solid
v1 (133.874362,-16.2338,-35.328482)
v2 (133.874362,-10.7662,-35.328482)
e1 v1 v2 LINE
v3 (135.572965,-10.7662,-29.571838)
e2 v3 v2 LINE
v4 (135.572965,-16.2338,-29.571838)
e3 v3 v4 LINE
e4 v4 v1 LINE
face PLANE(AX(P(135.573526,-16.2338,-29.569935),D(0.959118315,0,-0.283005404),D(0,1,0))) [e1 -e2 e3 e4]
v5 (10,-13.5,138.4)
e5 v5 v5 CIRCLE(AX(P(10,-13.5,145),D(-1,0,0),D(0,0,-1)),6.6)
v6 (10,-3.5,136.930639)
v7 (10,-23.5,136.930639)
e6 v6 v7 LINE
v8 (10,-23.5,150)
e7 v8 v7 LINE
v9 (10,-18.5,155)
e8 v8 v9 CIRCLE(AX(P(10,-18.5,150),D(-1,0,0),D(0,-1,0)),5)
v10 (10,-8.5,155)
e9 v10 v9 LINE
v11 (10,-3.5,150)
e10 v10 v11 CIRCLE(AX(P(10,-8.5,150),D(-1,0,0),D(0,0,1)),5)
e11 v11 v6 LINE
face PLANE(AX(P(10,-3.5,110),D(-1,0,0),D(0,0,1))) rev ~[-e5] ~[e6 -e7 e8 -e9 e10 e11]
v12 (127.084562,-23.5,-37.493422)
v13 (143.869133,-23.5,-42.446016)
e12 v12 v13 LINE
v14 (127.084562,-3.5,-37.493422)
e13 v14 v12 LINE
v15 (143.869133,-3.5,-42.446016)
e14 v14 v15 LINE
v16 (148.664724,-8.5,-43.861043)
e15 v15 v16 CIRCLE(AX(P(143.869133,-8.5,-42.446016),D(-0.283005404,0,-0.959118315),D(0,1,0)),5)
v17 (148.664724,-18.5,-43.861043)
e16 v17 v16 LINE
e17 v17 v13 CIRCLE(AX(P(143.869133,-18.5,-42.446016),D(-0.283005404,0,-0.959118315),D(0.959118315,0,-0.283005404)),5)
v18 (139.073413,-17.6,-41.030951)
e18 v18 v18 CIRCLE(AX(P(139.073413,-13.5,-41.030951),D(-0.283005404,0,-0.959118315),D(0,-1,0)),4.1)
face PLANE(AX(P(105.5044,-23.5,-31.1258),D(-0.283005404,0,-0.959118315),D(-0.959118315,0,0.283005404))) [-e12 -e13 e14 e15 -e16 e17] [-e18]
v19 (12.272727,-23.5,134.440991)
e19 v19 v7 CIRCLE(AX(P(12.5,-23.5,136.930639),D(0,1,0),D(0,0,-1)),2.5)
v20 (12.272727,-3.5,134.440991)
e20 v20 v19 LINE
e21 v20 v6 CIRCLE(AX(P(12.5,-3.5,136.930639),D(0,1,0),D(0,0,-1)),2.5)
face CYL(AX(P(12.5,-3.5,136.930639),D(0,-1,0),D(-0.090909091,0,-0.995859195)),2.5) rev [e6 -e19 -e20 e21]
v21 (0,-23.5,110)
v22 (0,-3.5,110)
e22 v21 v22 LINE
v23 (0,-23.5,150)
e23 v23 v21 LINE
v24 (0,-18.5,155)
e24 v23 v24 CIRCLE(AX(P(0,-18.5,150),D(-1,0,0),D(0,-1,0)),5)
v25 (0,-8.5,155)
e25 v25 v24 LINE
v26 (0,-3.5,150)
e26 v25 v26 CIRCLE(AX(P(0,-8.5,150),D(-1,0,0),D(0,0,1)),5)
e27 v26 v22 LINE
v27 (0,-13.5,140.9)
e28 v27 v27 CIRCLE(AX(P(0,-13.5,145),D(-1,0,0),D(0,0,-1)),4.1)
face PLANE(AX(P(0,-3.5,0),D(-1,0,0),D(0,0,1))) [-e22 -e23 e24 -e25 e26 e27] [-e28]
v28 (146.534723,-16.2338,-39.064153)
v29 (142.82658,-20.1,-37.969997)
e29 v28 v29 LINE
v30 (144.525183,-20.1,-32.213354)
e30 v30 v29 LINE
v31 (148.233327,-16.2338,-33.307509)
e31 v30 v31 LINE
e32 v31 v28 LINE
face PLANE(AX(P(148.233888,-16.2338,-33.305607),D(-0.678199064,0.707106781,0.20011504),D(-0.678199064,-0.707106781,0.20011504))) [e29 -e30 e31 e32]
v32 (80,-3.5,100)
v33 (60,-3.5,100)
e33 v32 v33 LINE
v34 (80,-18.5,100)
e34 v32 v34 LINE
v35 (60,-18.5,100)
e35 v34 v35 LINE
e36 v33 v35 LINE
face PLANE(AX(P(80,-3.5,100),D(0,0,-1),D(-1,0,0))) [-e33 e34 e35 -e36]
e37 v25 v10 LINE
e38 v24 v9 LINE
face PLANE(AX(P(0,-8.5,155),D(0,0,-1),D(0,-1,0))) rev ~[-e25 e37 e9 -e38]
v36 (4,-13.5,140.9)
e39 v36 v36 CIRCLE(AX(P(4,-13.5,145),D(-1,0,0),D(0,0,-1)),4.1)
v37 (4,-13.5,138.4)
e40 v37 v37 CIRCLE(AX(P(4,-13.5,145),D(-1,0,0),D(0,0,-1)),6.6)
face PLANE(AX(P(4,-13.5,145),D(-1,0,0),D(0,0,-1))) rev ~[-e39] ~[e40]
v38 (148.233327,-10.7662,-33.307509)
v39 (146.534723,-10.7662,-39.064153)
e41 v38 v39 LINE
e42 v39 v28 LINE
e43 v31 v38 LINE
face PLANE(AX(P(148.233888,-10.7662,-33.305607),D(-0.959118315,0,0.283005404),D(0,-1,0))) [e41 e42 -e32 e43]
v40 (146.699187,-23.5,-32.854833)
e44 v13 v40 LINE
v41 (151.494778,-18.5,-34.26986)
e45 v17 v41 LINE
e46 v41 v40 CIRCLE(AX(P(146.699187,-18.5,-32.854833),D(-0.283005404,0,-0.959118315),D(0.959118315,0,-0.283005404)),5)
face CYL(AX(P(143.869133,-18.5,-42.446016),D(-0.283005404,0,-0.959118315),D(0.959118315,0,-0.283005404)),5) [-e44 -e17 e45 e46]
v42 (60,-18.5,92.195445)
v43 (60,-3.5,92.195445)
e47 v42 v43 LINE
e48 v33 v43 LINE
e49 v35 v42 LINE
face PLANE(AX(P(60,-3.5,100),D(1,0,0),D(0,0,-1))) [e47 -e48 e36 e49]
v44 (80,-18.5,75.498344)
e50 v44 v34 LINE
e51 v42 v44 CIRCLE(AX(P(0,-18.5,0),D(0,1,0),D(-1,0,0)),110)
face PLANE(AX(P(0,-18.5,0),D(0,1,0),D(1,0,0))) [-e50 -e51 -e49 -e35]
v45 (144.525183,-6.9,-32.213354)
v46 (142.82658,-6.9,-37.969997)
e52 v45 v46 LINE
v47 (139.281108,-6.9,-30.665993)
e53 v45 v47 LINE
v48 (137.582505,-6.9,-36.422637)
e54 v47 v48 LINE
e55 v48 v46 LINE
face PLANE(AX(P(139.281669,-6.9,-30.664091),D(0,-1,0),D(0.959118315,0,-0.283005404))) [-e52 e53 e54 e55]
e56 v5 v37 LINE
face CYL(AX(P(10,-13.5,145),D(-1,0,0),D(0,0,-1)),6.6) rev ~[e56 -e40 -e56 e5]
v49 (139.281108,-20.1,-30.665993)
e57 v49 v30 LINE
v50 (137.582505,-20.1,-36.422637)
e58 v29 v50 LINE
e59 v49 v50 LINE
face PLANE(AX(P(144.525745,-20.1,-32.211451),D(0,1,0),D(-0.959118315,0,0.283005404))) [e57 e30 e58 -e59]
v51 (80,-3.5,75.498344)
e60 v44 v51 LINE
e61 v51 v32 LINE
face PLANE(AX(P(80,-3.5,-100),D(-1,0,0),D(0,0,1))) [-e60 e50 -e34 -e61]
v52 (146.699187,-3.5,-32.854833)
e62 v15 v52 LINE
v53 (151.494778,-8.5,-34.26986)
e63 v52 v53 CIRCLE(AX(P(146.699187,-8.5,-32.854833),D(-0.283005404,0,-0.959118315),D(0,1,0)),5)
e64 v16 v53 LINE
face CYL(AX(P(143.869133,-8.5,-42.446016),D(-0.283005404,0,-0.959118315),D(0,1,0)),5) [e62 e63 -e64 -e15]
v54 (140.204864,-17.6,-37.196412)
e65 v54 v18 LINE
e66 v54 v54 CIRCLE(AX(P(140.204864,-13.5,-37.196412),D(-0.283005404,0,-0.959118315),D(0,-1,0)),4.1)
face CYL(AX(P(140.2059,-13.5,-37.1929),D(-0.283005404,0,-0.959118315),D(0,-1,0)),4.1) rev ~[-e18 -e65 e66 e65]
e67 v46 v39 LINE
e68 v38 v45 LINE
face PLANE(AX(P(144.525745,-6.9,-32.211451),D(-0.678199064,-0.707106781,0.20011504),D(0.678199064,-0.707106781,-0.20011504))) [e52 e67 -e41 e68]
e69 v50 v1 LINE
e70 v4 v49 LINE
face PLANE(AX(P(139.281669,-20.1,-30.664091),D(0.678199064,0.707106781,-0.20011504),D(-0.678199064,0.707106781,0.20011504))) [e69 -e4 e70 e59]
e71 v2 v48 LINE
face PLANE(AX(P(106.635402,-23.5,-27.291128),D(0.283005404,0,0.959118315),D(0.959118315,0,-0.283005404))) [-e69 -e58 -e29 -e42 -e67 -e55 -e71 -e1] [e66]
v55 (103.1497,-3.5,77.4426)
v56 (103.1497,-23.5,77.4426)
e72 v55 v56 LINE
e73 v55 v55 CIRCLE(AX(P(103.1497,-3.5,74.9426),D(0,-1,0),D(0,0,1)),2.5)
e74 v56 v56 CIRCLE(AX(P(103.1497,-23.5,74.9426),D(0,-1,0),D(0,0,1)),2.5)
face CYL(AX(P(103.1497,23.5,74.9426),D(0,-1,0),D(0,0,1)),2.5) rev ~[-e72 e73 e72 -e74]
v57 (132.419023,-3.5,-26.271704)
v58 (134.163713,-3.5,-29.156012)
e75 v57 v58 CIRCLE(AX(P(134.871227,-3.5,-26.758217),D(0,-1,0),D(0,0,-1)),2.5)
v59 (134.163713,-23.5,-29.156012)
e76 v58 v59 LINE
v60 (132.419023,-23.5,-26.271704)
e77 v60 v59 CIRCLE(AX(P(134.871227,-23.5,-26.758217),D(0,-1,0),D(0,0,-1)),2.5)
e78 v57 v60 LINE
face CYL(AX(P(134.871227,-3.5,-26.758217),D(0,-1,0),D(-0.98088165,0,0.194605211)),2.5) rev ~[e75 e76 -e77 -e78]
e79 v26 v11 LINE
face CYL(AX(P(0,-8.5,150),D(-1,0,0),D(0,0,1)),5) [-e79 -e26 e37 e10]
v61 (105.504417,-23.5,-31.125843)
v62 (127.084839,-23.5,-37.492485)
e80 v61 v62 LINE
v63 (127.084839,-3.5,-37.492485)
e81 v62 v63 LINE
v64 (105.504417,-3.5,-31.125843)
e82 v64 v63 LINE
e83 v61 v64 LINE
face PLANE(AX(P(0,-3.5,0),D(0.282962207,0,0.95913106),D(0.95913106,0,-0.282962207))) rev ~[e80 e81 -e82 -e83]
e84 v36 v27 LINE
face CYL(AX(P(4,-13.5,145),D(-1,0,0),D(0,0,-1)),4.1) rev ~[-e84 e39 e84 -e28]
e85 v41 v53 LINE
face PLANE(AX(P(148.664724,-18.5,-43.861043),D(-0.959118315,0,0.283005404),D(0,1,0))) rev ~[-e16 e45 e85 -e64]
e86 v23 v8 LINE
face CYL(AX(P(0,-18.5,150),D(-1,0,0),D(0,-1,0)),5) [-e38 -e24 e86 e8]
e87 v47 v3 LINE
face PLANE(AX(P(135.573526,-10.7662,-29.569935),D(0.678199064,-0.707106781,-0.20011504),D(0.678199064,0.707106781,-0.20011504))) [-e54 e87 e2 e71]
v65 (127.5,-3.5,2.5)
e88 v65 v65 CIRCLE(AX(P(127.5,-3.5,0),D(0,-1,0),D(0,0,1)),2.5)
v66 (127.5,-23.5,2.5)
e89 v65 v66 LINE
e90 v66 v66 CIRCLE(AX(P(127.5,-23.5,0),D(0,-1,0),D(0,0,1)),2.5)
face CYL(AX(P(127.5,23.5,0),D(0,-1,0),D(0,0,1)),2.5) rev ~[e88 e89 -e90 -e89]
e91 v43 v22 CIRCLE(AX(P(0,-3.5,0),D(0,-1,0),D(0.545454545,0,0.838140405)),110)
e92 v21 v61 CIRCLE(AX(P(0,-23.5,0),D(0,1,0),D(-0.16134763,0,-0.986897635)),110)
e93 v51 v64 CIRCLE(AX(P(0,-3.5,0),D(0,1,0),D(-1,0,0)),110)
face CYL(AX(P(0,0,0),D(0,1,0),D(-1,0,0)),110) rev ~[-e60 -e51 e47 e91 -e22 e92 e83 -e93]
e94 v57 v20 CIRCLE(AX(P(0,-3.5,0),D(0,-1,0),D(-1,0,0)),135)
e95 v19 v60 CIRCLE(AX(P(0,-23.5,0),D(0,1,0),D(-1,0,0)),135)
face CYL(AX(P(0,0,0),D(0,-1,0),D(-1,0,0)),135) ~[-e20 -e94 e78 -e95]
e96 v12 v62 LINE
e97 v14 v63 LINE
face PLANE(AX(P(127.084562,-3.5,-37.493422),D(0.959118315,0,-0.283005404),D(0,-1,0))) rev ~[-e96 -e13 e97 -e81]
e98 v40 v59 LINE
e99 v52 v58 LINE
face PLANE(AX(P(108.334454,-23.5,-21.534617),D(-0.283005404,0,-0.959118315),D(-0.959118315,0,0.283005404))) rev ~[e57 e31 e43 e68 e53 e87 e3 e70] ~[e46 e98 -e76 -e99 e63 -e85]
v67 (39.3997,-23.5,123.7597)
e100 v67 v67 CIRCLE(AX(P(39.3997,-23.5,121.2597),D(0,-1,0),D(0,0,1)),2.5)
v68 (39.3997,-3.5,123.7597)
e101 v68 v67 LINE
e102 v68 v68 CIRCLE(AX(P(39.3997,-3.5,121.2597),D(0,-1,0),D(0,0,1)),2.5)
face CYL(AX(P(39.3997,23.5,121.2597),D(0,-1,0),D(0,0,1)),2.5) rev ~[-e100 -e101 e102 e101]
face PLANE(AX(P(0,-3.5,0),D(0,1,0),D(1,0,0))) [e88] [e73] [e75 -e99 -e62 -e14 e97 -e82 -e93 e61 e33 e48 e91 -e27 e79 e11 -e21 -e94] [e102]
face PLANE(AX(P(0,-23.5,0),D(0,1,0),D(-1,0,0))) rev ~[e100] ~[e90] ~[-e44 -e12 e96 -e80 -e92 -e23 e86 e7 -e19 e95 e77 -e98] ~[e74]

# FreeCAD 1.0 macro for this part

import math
import FreeCAD as App
import Part
import Sketcher

V = App.Vector
Q = App.Units.Quantity


def edges_at(feature, points):
    """Names of the edges that pass closest to the given points."""
    edges = feature.Shape.Edges
    near = lambda p: min(range(len(edges)), key=lambda i: edges[i].distToShape(Part.Vertex(*p))[0])
    return sorted({f"Edge{near(p) + 1}" for p in points})


def add_polygon(sketch, points):
    """Adds a closed chain of lines whose ends are joined by coincident constraints."""
    first, n = sketch.GeometryCount, len(points)
    for a, b in zip(points, points[1:] + points[:1]):
        sketch.addGeometry(Part.LineSegment(App.Vector(*a, 0), App.Vector(*b, 0)), False)
    for i in range(n):
        sketch.addConstraint(Sketcher.Constraint("Coincident", first + i, 2, first + (i + 1) % n, 1))

doc = App.newDocument("Part")
body = doc.addObject("PartDesign::Body", "Body")

# Sketch on XZ plane
sketch1 = body.newObject("Sketcher::SketchObject", "Sketch")
sketch1.AttachmentSupport = (doc.getObject("XZ_Plane"), [""])
sketch1.MapMode = "FlatFace"
sketch1.addGeometry([
    Part.Circle(V(0, 0, 0), V(0, 0, 1), 135),
    Part.Circle(V(0, 0, 0), V(0, 0, 1), 110),
], False)
sketch1.addConstraint([
    Sketcher.Constraint("Coincident", 0, 3, -1, 1),
    Sketcher.Constraint("Coincident", 1, 3, -1, 1),
    Sketcher.Constraint("Diameter", 0, Q("270 mm")),
    Sketcher.Constraint("Diameter", 1, Q("220 mm")),
])
pad1 = body.newObject("PartDesign::Pad", "Pad")
pad1.Profile = sketch1
pad1.Length = 47
pad1.Midplane = True

# Sketch on XY plane
sketch2 = body.newObject("Sketcher::SketchObject", "Sketch001")
sketch2.AttachmentSupport = (doc.getObject("XY_Plane"), [""])
sketch2.MapMode = "FlatFace"
sketch2.addGeometry(Part.Circle(V(0, -20.5, 0), V(0, 0, 1), 18), False)
sketch2.addConstraint([
    Sketcher.Constraint("PointOnObject", 0, 3, -2),
    Sketcher.Constraint("Diameter", 0, Q("36 mm")),
    Sketcher.Constraint("DistanceY", 0, 3, -1, 1, Q("20.5 mm")),
])
pocket1 = body.newObject("PartDesign::Pocket", "Pocket")
pocket1.Profile = sketch2
pocket1.Type = "ThroughAll"

# Sketch on XZ plane
sketch3 = body.newObject("Sketcher::SketchObject", "Sketch002")
sketch3.AttachmentSupport = (doc.getObject("XZ_Plane"), [""])
sketch3.MapMode = "FlatFace"
sketch3.AttachmentOffset = App.Placement(V(0, 0, -23.5), App.Rotation())
sketch3.addGeometry([
    Part.Circle(V(39.3997, 121.2597, 0), V(0, 0, 1), 2.5),  # 0
    Part.Circle(V(-39.3997, 121.2597, 0), V(0, 0, 1), 2.5),  # 1
    Part.Circle(V(-103.1497, 74.9426, 0), V(0, 0, 1), 2.5),  # 2
    Part.Circle(V(-127.5, 0, 0), V(0, 0, 1), 2.5),  # 3
    Part.Circle(V(-103.1497, -74.9426, 0), V(0, 0, 1), 2.5),  # 4
    Part.Circle(V(-39.3997, -121.2597, 0), V(0, 0, 1), 2.5),  # 5
    Part.Circle(V(39.3997, -121.2597, 0), V(0, 0, 1), 2.5),  # 6
    Part.Circle(V(103.1497, -74.9426, 0), V(0, 0, 1), 2.5),  # 7
    Part.Circle(V(127.5, 0, 0), V(0, 0, 1), 2.5),  # 8
    Part.Circle(V(103.1497, 74.9426, 0), V(0, 0, 1), 2.5),  # 9
], False)
sketch3.addConstraint([
    Sketcher.Constraint("Equal", 0, 1),
    Sketcher.Constraint("Equal", 1, 2),
    Sketcher.Constraint("Equal", 2, 3),
    Sketcher.Constraint("Equal", 3, 4),
    Sketcher.Constraint("Equal", 4, 5),
    Sketcher.Constraint("Equal", 5, 6),
    Sketcher.Constraint("Equal", 6, 7),
    Sketcher.Constraint("Equal", 7, 8),
    Sketcher.Constraint("Equal", 8, 9),
    Sketcher.Constraint("Symmetric", 0, 3, 5, 3, -1, 1),
    Sketcher.Constraint("Symmetric", 1, 3, 6, 3, -1, 1),
    Sketcher.Constraint("Symmetric", 2, 3, 7, 3, -1, 1),
    Sketcher.Constraint("Symmetric", 3, 3, 8, 3, -1, 1),
    Sketcher.Constraint("Symmetric", 4, 3, 9, 3, -1, 1),
    Sketcher.Constraint("Symmetric", 0, 3, 1, 3, -2),
    Sketcher.Constraint("Symmetric", 4, 3, 7, 3, -2),
    Sketcher.Constraint("PointOnObject", 3, 3, -1),
    Sketcher.Constraint("Diameter", 0, Q("5 mm")),
    Sketcher.Constraint("DistanceX", 3, 3, -1, 1, Q("127.5 mm")),
    Sketcher.Constraint("DistanceX", 2, 3, 1, 3, Q("63.75 mm")),
    Sketcher.Constraint("DistanceY", 2, 3, 1, 3, Q("46.317 mm")),
    Sketcher.Constraint("DistanceX", -1, 1, 0, 3, Q("39.3997 mm")),
    Sketcher.Constraint("DistanceY", -1, 1, 0, 3, Q("121.2597 mm")),
])
doc.recompute()
hole = body.newObject("PartDesign::Hole", "Hole")
hole.Profile = sketch3
hole.ThreadType = "None"
hole.Diameter = 5
hole.DepthType = "ThroughAll"
hole.Reversed = True

# Sketch on XZ plane
sketch4 = body.newObject("Sketcher::SketchObject", "Sketch003")
sketch4.AttachmentSupport = (doc.getObject("XZ_Plane"), [""])
sketch4.MapMode = "FlatFace"
sketch4.AttachmentOffset = App.Placement(V(0, 0, -23.5), App.Rotation())
sketch4.addGeometry(Part.Circle(V(0, 0, 0), V(0, 0, 1), 140), False)
sketch4.addConstraint([
    Sketcher.Constraint("Coincident", 0, 3, -1, 1),
    Sketcher.Constraint("Diameter", 0, Q("280 mm")),
])
pocket2 = body.newObject("PartDesign::Pocket", "Pocket001")
pocket2.Profile = sketch4
pocket2.Length = 27
pocket2.Reversed = True

# Sketch on XZ plane
sketch5 = body.newObject("Sketcher::SketchObject", "Sketch004")
sketch5.AttachmentSupport = (doc.getObject("XZ_Plane"), [""])
sketch5.MapMode = "FlatFace"
sketch5.AttachmentOffset = App.Placement(V(0, 0, 3.5), App.Rotation())
add_polygon(sketch5, [(60, 100), (80, 100), (80, -100), (60, -100)])  # lines 0-3
sketch5.addConstraint([
    Sketcher.Constraint("Horizontal", 0),
    Sketcher.Constraint("Vertical", 1),
    Sketcher.Constraint("Horizontal", 2),
    Sketcher.Constraint("Vertical", 3),
    Sketcher.Constraint("DistanceX", 0, 1, 0, 2, Q("20 mm")),
    Sketcher.Constraint("DistanceY", 1, 2, 1, 1, Q("200 mm")),
    Sketcher.Constraint("DistanceX", -1, 1, 0, 2, Q("80 mm")),
    Sketcher.Constraint("DistanceY", -1, 1, 0, 2, Q("100 mm")),
])
pocket3 = body.newObject("PartDesign::Pocket", "Pocket002")
pocket3.Profile = sketch5
pocket3.Length = 15
pocket3.Reversed = True

# Sketch on XZ plane
sketch6 = body.newObject("Sketcher::SketchObject", "Sketch005")
sketch6.AttachmentSupport = (doc.getObject("XZ_Plane"), [""])
sketch6.MapMode = "FlatFace"
sketch6.AttachmentOffset = App.Placement(V(0, 0, 3.5), App.Rotation())
sketch6.addGeometry([
    Part.LineSegment(V(0, 135, 0), V(0, 0, 0)),
    Part.LineSegment(V(0, 0, 0), V(129.4827, -38.1999, 0)),
    Part.ArcOfCircle(Part.Circle(V(0, 0, 0), V(0, 0, 1), 134.999993), math.radians(90), math.radians(343.562922)),
], False)
sketch6.addConstraint([
    Sketcher.Constraint("Coincident", 0, 2, 1, 1),
    Sketcher.Constraint("Coincident", 1, 2, 2, 2),
    Sketcher.Constraint("Coincident", 2, 1, 0, 1),
    Sketcher.Constraint("Vertical", 0),
    Sketcher.Constraint("Coincident", 2, 3, -1, 1),
    Sketcher.Constraint("Coincident", 0, 2, -1, 1),
    Sketcher.Constraint("Radius", 2, Q("135 mm")),
    Sketcher.Constraint("DistanceY", 1, 2, -1, 1, Q("38.2 mm")),
])
pocket4 = body.newObject("PartDesign::Pocket", "Pocket003")
pocket4.Profile = sketch6
pocket4.Type = "ThroughAll"
pocket4.Reversed = True

# Sketch on YZ plane
sketch7 = body.newObject("Sketcher::SketchObject", "Sketch006")
sketch7.AttachmentSupport = (doc.getObject("YZ_Plane"), [""])
sketch7.MapMode = "FlatFace"
sketch7.addGeometry([
    Part.LineSegment(V(-3.5, 132.5, 0), V(-23.5, 132.5, 0)),  # 0
    Part.LineSegment(V(-23.5, 132.5, 0), V(-23.5, 150, 0)),  # 1
    Part.ArcOfCircle(Part.Circle(V(-18.5, 150, 0), V(0, 0, 1), 5), math.radians(90), math.radians(180)),  # 2
    Part.LineSegment(V(-18.5, 155, 0), V(-8.5, 155, 0)),  # 3
    Part.ArcOfCircle(Part.Circle(V(-8.5, 150, 0), V(0, 0, 1), 5), math.radians(0), math.radians(90)),  # 4
    Part.LineSegment(V(-3.5, 150, 0), V(-3.5, 132.5, 0)),  # 5
], False)
sketch7.addConstraint([
    Sketcher.Constraint("Coincident", 0, 2, 1, 1),
    Sketcher.Constraint("Tangent", 1, 2, 2, 2),
    Sketcher.Constraint("Tangent", 2, 1, 3, 1),
    Sketcher.Constraint("Tangent", 3, 2, 4, 2),
    Sketcher.Constraint("Tangent", 4, 1, 5, 1),
    Sketcher.Constraint("Coincident", 5, 2, 0, 1),
    Sketcher.Constraint("Horizontal", 0),
    Sketcher.Constraint("Vertical", 1),
    Sketcher.Constraint("Horizontal", 3),
    Sketcher.Constraint("Vertical", 5),
    Sketcher.Constraint("Equal", 2, 4),
    Sketcher.Constraint("Radius", 2, Q("5 mm")),
    Sketcher.Constraint("DistanceX", 0, 2, 0, 1, Q("20 mm")),
    Sketcher.Constraint("DistanceY", 0, 2, 2, 1, Q("22.5 mm")),
    Sketcher.Constraint("DistanceY", -1, 1, 2, 3, Q("150 mm")),
    Sketcher.Constraint("DistanceX", 2, 3, -1, 1, Q("18.5 mm")),
])
pad2 = body.newObject("PartDesign::Pad", "Pad001")
pad2.Profile = sketch7
pad2.Length = 10

# Sketch on an angled plane
sketch8 = body.newObject("Sketcher::SketchObject", "Sketch007")
sketch8.Placement = App.Placement(V(105.5044, -23.5, -31.1258), App.Rotation(V(-0.959118315, 0, 0.283005404), V(0, 1.000000001, 0), V(-0.283005404, 0, -0.959118315), "ZXY"))
sketch8.addGeometry([
    Part.LineSegment(V(-22.5, 0, 0), V(-22.5, 20, 0)),  # 0
    Part.LineSegment(V(-22.5, 20, 0), V(-40, 20, 0)),  # 1
    Part.ArcOfCircle(Part.Circle(V(-40, 15, 0), V(0, 0, 1), 5), math.radians(90), math.radians(180)),  # 2
    Part.LineSegment(V(-45, 15, 0), V(-45, 5, 0)),  # 3
    Part.ArcOfCircle(Part.Circle(V(-40, 5, 0), V(0, 0, 1), 5), math.radians(180), math.radians(270)),  # 4
    Part.LineSegment(V(-40, 0, 0), V(-22.5, 0, 0)),  # 5
], False)
sketch8.addConstraint([
    Sketcher.Constraint("Coincident", 0, 2, 1, 1),
    Sketcher.Constraint("Tangent", 1, 2, 2, 1),
    Sketcher.Constraint("Tangent", 2, 2, 3, 1),
    Sketcher.Constraint("Tangent", 3, 2, 4, 1),
    Sketcher.Constraint("Tangent", 4, 2, 5, 1),
    Sketcher.Constraint("Coincident", 5, 2, 0, 1),
    Sketcher.Constraint("Vertical", 0),
    Sketcher.Constraint("Horizontal", 1),
    Sketcher.Constraint("Vertical", 3),
    Sketcher.Constraint("Horizontal", 5),
    Sketcher.Constraint("Equal", 2, 4),
    Sketcher.Constraint("PointOnObject", 4, 2, -1),
    Sketcher.Constraint("Radius", 2, Q("5 mm")),
    Sketcher.Constraint("DistanceY", 0, 1, 0, 2, Q("20 mm")),
    Sketcher.Constraint("DistanceX", 0, 2, -1, 1, Q("22.5 mm")),
    Sketcher.Constraint("DistanceX", 2, 2, 0, 2, Q("22.5 mm")),
])
pad3 = body.newObject("PartDesign::Pad", "Pad002")
pad3.Profile = sketch8
pad3.Length = 10
pad3.Reversed = True
doc.recompute()

fillet = body.newObject("PartDesign::Fillet", "Fillet")
fillet.Base = (pad3, edges_at(pad3, [(131.957, -13.5, -28.504), (10, -13.5, 134.629)]))
fillet.Radius = 2.5

# Sketch on YZ plane
sketch9 = body.newObject("Sketcher::SketchObject", "Sketch008")
sketch9.AttachmentSupport = (doc.getObject("YZ_Plane"), [""])
sketch9.MapMode = "FlatFace"
sketch9.AttachmentOffset = App.Placement(V(0, 0, 10), App.Rotation())
sketch9.addGeometry(Part.Circle(V(-13.5, 145, 0), V(0, 0, 1), 4.1), False)
sketch9.addConstraint([
    Sketcher.Constraint("Diameter", 0, Q("8.2 mm")),
    Sketcher.Constraint("DistanceY", -1, 1, 0, 3, Q("145 mm")),
    Sketcher.Constraint("DistanceX", 0, 3, -1, 1, Q("13.5 mm")),
])
doc.recompute()
hole2 = body.newObject("PartDesign::Hole", "Hole001")
hole2.Profile = sketch9
hole2.ThreadType = "None"
hole2.Diameter = 8.2
hole2.DepthType = "ThroughAll"
hole2.HoleCutType = "Counterbore"
hole2.HoleCutDiameter = 13.2
hole2.HoleCutDepth = 6

# Sketch on an angled plane
sketch10 = body.newObject("Sketcher::SketchObject", "Sketch009")
sketch10.Placement = App.Placement(V(108.334, -23.5, -21.5345), App.Rotation(V(0.959118315, 0, -0.283005404), V(0, 1.000000001, 0), V(0.283005404, 0, 0.959118315), "ZXY"))
add_polygon(sketch10, [(37.7338, 3.4), (41.6, 7.2662), (41.6, 12.7338), (37.7338, 16.6), (32.2662, 16.6), (28.4, 12.7338), (28.4, 7.2662), (32.2662, 3.4)])  # lines 0-7
sketch10.addConstraint([
    Sketcher.Constraint("Vertical", 1),
    Sketcher.Constraint("Horizontal", 3),
    Sketcher.Constraint("Vertical", 5),
    Sketcher.Constraint("Horizontal", 7),
    Sketcher.Constraint("Perpendicular", 0, 2),
    Sketcher.Constraint("Perpendicular", 2, 4),
    Sketcher.Constraint("Perpendicular", 4, 6),
    Sketcher.Constraint("Horizontal", 1, 2, 4, 2),
    Sketcher.Constraint("Horizontal", 0, 2, 5, 2),
    Sketcher.Constraint("Vertical", 3, 2, 6, 2),
    Sketcher.Constraint("Vertical", 2, 2, 7, 2),
    Sketcher.Constraint("Equal", 7, 1),
    Sketcher.Constraint("DistanceX", 4, 2, 1, 2, Q("13.2 mm")),
    Sketcher.Constraint("DistanceX", -1, 1, 0, 2, Q("41.6 mm")),
    Sketcher.Constraint("DistanceY", -1, 1, 2, 2, Q("16.6 mm")),
    Sketcher.Constraint("DistanceX", 3, 2, 3, 1, Q("5.4676 mm")),
])
pocket5 = body.newObject("PartDesign::Pocket", "Pocket004")
pocket5.Profile = sketch10
pocket5.Length = 6

# Sketch on an angled plane
sketch11 = body.newObject("Sketcher::SketchObject", "Sketch010")
sketch11.Placement = App.Placement(V(1.1339, 0, 3.842838), App.Rotation(V(0.959118315, 0, -0.283005404), V(0, 1.000000001, 0), V(0.283005404, 0, 0.959118315), "ZXY"))
sketch11.addGeometry(Part.Circle(V(144.999838, -13.5, 0), V(0, 0, 1), 4.1), False)
sketch11.addConstraint([
    Sketcher.Constraint("Diameter", 0, Q("8.2 mm")),
    Sketcher.Constraint("DistanceY", 0, 3, -1, 1, Q("13.5 mm")),
    Sketcher.Constraint("DistanceX", -1, 1, 0, 3, Q("144.9998 mm")),
])
doc.recompute()
hole3 = body.newObject("PartDesign::Hole", "Hole002")
hole3.Profile = sketch11
hole3.ThreadType = "None"
hole3.Diameter = 8.2
hole3.DepthType = "ThroughAll"

doc.recompute()
